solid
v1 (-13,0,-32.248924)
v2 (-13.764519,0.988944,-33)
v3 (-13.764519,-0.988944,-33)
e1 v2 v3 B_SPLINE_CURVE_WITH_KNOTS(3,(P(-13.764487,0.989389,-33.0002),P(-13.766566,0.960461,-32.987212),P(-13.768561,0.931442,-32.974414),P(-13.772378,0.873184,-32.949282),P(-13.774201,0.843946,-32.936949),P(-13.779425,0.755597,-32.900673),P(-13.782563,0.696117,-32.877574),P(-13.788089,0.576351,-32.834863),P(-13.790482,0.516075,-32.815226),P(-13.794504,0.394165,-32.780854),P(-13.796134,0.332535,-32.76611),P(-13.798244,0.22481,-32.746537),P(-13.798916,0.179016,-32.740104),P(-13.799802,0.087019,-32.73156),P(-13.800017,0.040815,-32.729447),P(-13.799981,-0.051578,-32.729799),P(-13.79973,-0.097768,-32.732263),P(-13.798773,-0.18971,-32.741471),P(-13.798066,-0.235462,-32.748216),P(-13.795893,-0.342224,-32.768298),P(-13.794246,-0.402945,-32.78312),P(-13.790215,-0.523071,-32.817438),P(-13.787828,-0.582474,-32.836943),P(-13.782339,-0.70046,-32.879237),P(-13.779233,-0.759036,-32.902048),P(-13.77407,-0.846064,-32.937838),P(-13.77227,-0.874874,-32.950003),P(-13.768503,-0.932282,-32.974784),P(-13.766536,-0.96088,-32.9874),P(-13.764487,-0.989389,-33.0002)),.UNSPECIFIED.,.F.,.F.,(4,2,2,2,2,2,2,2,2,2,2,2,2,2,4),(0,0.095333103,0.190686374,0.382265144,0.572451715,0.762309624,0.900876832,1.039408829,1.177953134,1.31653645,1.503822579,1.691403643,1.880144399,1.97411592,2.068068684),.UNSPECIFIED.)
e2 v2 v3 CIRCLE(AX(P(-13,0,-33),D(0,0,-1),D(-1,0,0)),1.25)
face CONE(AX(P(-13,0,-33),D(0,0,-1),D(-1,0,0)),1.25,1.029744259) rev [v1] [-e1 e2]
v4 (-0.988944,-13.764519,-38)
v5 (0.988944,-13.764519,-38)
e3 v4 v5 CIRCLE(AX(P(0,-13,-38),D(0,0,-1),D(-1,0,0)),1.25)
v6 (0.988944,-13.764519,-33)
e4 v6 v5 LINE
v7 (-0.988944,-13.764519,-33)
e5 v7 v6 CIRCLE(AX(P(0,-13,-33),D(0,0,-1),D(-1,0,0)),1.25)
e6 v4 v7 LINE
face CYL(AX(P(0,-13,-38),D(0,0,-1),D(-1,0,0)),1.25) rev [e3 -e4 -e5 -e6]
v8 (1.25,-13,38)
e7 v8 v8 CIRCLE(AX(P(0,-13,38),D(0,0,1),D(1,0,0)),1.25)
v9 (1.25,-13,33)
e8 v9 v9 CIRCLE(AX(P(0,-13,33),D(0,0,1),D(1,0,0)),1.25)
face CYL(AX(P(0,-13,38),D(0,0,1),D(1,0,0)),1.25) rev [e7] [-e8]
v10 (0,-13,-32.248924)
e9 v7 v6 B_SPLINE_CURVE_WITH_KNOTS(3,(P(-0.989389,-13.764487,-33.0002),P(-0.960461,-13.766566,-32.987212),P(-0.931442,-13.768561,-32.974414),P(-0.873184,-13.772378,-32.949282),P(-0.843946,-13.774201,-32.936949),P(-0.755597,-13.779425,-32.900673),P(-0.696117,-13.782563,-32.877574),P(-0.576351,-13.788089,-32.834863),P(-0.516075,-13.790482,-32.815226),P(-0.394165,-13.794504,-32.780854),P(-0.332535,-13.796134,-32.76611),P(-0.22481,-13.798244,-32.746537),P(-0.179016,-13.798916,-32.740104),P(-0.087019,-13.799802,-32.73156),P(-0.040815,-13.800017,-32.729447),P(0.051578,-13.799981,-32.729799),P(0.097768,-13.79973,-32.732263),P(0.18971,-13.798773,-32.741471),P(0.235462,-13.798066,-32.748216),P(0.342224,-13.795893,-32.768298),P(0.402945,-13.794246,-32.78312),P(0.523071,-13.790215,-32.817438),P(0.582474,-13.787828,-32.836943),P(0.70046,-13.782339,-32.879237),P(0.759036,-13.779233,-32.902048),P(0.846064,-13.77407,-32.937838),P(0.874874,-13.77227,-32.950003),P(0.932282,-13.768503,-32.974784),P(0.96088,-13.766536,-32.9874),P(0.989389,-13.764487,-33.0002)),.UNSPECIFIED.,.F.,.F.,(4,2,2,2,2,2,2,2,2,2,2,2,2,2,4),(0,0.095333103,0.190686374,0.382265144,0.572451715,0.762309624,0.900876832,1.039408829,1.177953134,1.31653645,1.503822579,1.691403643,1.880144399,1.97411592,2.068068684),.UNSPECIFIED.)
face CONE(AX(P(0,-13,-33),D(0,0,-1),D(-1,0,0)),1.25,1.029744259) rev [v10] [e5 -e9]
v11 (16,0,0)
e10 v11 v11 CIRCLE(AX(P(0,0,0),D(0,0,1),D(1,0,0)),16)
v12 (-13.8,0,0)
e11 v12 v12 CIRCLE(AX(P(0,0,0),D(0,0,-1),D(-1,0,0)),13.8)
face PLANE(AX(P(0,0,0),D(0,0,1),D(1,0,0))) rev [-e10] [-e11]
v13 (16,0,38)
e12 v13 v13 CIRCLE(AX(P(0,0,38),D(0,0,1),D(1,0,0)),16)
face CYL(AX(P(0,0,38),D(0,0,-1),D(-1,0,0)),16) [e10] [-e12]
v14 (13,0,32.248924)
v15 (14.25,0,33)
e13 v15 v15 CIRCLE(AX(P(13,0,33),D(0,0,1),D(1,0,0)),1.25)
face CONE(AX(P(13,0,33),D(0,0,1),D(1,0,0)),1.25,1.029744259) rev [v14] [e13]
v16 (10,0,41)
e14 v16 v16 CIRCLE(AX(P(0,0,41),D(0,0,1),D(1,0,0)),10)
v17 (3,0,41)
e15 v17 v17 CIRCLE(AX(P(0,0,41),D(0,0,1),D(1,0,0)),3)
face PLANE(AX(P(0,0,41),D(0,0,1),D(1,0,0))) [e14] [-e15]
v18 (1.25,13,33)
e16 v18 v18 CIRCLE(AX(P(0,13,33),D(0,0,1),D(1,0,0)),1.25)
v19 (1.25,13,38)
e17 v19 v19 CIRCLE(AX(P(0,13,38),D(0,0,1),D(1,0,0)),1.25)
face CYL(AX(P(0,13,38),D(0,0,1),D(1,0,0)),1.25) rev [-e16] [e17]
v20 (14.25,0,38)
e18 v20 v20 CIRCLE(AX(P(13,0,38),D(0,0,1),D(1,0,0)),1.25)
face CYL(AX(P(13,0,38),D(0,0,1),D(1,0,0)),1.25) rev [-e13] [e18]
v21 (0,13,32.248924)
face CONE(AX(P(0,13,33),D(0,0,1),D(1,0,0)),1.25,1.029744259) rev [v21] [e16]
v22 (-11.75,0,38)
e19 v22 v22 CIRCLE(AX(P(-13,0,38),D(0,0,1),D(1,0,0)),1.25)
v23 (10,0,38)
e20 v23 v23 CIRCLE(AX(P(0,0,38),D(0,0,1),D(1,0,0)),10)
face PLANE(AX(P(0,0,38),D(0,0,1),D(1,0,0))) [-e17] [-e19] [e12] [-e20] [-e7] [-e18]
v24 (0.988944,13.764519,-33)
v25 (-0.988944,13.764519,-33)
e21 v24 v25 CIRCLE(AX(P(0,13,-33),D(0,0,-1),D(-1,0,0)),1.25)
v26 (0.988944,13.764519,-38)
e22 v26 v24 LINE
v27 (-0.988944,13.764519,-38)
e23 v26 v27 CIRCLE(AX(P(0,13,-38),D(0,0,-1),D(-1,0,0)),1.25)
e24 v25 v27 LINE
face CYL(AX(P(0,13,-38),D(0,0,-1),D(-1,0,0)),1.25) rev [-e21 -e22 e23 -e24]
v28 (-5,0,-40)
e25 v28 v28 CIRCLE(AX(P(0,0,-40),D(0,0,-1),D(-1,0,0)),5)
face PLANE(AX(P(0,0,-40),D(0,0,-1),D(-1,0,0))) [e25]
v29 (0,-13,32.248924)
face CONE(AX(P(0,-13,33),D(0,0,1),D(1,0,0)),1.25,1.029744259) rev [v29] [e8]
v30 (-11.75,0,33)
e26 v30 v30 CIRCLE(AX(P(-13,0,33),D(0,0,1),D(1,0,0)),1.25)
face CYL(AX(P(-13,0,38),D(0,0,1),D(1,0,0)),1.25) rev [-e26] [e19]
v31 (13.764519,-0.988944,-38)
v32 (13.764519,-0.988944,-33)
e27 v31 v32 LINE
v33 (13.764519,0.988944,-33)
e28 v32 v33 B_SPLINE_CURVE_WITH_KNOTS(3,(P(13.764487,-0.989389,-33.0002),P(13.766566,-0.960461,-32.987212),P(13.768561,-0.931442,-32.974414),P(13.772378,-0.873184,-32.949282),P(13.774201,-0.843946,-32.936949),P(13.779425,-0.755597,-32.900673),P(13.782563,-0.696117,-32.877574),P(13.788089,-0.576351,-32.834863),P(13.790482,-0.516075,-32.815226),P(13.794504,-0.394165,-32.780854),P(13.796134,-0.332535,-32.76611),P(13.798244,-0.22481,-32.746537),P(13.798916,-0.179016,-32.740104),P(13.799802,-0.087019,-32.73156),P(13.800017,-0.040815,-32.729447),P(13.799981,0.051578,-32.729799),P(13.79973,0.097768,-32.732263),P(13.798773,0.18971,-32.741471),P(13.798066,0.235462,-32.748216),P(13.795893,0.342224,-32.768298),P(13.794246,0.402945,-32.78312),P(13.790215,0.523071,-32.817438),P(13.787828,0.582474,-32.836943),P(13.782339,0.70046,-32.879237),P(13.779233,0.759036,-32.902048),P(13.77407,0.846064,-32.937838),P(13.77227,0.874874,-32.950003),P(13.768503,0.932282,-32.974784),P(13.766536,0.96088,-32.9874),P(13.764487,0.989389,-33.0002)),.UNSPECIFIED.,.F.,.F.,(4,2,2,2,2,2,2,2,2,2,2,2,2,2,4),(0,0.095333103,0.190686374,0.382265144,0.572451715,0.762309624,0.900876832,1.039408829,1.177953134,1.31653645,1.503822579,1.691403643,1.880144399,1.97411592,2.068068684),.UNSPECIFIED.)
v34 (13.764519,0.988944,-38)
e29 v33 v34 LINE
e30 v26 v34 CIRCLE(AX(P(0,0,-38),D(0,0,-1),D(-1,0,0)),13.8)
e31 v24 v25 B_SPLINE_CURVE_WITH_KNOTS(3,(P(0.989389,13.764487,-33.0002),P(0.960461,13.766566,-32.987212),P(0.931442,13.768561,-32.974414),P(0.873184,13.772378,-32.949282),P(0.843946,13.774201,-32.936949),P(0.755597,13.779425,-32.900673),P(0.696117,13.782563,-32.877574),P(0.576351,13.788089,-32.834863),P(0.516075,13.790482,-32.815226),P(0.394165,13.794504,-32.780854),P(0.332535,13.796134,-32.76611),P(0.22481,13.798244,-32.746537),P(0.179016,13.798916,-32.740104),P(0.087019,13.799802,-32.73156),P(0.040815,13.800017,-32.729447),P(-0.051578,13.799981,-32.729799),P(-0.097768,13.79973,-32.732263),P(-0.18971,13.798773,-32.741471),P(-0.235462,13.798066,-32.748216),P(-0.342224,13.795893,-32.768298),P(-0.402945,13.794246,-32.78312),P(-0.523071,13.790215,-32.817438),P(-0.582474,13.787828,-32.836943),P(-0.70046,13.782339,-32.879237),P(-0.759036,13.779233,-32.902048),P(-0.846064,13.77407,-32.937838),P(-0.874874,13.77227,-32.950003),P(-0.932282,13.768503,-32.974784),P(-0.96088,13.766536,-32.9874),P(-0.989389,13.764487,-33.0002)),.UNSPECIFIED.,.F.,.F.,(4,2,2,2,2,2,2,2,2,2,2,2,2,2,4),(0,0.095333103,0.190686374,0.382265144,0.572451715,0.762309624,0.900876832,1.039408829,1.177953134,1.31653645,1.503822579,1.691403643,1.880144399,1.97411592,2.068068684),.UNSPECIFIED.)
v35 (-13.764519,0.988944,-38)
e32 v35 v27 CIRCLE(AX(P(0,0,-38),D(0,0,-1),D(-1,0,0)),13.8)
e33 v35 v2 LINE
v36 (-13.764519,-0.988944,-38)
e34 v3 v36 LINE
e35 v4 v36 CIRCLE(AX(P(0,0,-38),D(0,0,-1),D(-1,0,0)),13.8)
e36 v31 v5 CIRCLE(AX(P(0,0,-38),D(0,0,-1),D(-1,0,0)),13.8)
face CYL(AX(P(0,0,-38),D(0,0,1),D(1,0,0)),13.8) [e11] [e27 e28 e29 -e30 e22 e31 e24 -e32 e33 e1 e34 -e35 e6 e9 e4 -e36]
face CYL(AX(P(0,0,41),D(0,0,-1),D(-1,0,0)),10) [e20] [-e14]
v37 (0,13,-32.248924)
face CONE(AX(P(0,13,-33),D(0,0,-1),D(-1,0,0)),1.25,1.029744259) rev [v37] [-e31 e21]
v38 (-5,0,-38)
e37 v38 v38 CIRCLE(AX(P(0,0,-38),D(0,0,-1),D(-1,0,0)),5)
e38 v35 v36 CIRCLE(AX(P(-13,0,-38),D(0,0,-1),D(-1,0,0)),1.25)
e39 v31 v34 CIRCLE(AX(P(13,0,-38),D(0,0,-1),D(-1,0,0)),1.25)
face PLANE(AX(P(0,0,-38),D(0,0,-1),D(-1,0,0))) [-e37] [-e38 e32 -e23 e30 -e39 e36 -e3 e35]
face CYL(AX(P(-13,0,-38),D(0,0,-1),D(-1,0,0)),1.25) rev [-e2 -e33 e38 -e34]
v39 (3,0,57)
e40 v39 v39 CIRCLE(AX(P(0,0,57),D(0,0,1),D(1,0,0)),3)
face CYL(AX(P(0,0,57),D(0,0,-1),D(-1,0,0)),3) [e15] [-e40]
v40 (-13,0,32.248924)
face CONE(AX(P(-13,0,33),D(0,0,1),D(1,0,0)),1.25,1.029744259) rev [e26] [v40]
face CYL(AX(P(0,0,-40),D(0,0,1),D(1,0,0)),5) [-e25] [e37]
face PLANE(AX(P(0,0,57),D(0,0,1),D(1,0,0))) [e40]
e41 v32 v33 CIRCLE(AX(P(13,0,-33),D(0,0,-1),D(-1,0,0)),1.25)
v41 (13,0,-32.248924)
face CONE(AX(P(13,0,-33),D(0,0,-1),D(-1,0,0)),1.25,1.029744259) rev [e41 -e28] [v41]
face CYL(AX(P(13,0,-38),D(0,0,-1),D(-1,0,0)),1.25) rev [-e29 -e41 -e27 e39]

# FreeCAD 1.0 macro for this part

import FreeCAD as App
import Part
import Sketcher

V = App.Vector
Q = App.Units.Quantity

doc = App.newDocument("Part")
body = doc.addObject("PartDesign::Body", "Body")

# Sketch on XY plane
sketch1 = doc.addObject("Sketcher::SketchObject", "Sketch")
body.addObject(sketch1)
sketch1.AttachmentSupport = (doc.XY_Plane, [""])
sketch1.MapMode = "FlatFace"
sketch1.addGeometry(Part.Circle(V(0, 0, 0), V(0, 0, 1), 16), False)
sketch1.addConstraint([
    Sketcher.Constraint("Coincident", 0, 3, -1, 1),
    Sketcher.Constraint("Diameter", 0, Q("32 mm")),
])
pad1 = doc.addObject("PartDesign::Pad", "Pad")
body.addObject(pad1)
pad1.Profile = sketch1
pad1.Length = 38

# Sketch on XY plane
sketch2 = doc.addObject("Sketcher::SketchObject", "Sketch001")
body.addObject(sketch2)
sketch2.AttachmentSupport = (doc.XY_Plane, [""])
sketch2.MapMode = "FlatFace"
sketch2.addGeometry(Part.Circle(V(0, 0, 0), V(0, 0, 1), 13.8), False)
sketch2.addConstraint([
    Sketcher.Constraint("Coincident", 0, 3, -1, 1),
    Sketcher.Constraint("Diameter", 0, Q("27.6 mm")),
])
pad2 = doc.addObject("PartDesign::Pad", "Pad001")
body.addObject(pad2)
pad2.Profile = sketch2
pad2.Length = 38
pad2.Reversed = True

# Sketch on XY plane
sketch3 = doc.addObject("Sketcher::SketchObject", "Sketch002")
body.addObject(sketch3)
sketch3.AttachmentSupport = (doc.XY_Plane, [""])
sketch3.MapMode = "FlatFace"
sketch3.AttachmentOffset = App.Placement(V(0, 0, -38), App.Rotation())
sketch3.addGeometry(Part.Circle(V(0, 0, 0), V(0, 0, 1), 5), False)
sketch3.addConstraint([
    Sketcher.Constraint("Coincident", 0, 3, -1, 1),
    Sketcher.Constraint("Diameter", 0, Q("10 mm")),
])
pad3 = doc.addObject("PartDesign::Pad", "Pad002")
body.addObject(pad3)
pad3.Profile = sketch3
pad3.Length = 2
pad3.Reversed = True

# Sketch on XY plane
sketch4 = doc.addObject("Sketcher::SketchObject", "Sketch003")
body.addObject(sketch4)
sketch4.AttachmentSupport = (doc.XY_Plane, [""])
sketch4.MapMode = "FlatFace"
sketch4.AttachmentOffset = App.Placement(V(0, 0, 38), App.Rotation())
sketch4.addGeometry(Part.Circle(V(0, 0, 0), V(0, 0, 1), 10), False)
sketch4.addConstraint([
    Sketcher.Constraint("Coincident", 0, 3, -1, 1),
    Sketcher.Constraint("Diameter", 0, Q("20 mm")),
])
pad4 = doc.addObject("PartDesign::Pad", "Pad003")
body.addObject(pad4)
pad4.Profile = sketch4
pad4.Length = 3

# Sketch on XY plane
sketch5 = doc.addObject("Sketcher::SketchObject", "Sketch004")
body.addObject(sketch5)
sketch5.AttachmentSupport = (doc.XY_Plane, [""])
sketch5.MapMode = "FlatFace"
sketch5.AttachmentOffset = App.Placement(V(0, 0, 41), App.Rotation())
sketch5.addGeometry(Part.Circle(V(0, 0, 0), V(0, 0, 1), 3), False)
sketch5.addConstraint([
    Sketcher.Constraint("Coincident", 0, 3, -1, 1),
    Sketcher.Constraint("Diameter", 0, Q("6 mm")),
])
pad5 = doc.addObject("PartDesign::Pad", "Pad004")
body.addObject(pad5)
pad5.Profile = sketch5
pad5.Length = 16

# Sketch on XY plane
sketch6 = doc.addObject("Sketcher::SketchObject", "Sketch005")
body.addObject(sketch6)
sketch6.AttachmentSupport = (doc.XY_Plane, [""])
sketch6.MapMode = "FlatFace"
sketch6.AttachmentOffset = App.Placement(V(0, 0, -38), App.Rotation())
sketch6.addGeometry([
    Part.Circle(V(13, 0, 0), V(0, 0, 1), 1.25),
    Part.Circle(V(0, -13, 0), V(0, 0, 1), 1.25),
    Part.Circle(V(-13, 0, 0), V(0, 0, 1), 1.25),
    Part.Circle(V(0, 13, 0), V(0, 0, 1), 1.25),
], False)
sketch6.addConstraint([
    Sketcher.Constraint("Equal", 0, 1),
    Sketcher.Constraint("Equal", 1, 2),
    Sketcher.Constraint("Equal", 2, 3),
    Sketcher.Constraint("Symmetric", 0, 3, 2, 3, -1, 1),
    Sketcher.Constraint("Symmetric", 1, 3, 3, 3, -1, 1),
    Sketcher.Constraint("PointOnObject", 0, 3, -1),
    Sketcher.Constraint("PointOnObject", 1, 3, -2),
    Sketcher.Constraint("Diameter", 0, Q("2.5 mm")),
    Sketcher.Constraint("DistanceX", -1, 1, 0, 3, Q("13 mm")),
    Sketcher.Constraint("DistanceY", 1, 3, -1, 1, Q("13 mm")),
])
doc.recompute()
hole = doc.addObject("PartDesign::Hole", "Hole")
body.addObject(hole)
hole.Profile = sketch6
hole.ThreadType = "None"
hole.Diameter = 2.5
hole.DepthType = "Dimension"
hole.Depth = 5
hole.DrillPoint = "Angled"
hole.DrillPointAngle = 118
hole.Reversed = True

# Sketch on XY plane
sketch7 = doc.addObject("Sketcher::SketchObject", "Sketch006")
body.addObject(sketch7)
sketch7.AttachmentSupport = (doc.XY_Plane, [""])
sketch7.MapMode = "FlatFace"
sketch7.AttachmentOffset = App.Placement(V(0, 0, 38), App.Rotation())
sketch7.addGeometry([
    Part.Circle(V(0, 13, 0), V(0, 0, 1), 1.25),
    Part.Circle(V(-13, 0, 0), V(0, 0, 1), 1.25),
    Part.Circle(V(0, -13, 0), V(0, 0, 1), 1.25),
    Part.Circle(V(13, 0, 0), V(0, 0, 1), 1.25),
], False)
sketch7.addConstraint([
    Sketcher.Constraint("Equal", 0, 1),
    Sketcher.Constraint("Equal", 1, 2),
    Sketcher.Constraint("Equal", 2, 3),
    Sketcher.Constraint("Symmetric", 0, 3, 2, 3, -1, 1),
    Sketcher.Constraint("Symmetric", 1, 3, 3, 3, -1, 1),
    Sketcher.Constraint("PointOnObject", 0, 3, -2),
    Sketcher.Constraint("PointOnObject", 1, 3, -1),
    Sketcher.Constraint("Diameter", 0, Q("2.5 mm")),
    Sketcher.Constraint("DistanceY", -1, 1, 0, 3, Q("13 mm")),
    Sketcher.Constraint("DistanceX", 1, 3, -1, 1, Q("13 mm")),
])
doc.recompute()
hole2 = doc.addObject("PartDesign::Hole", "Hole001")
body.addObject(hole2)
hole2.Profile = sketch7
hole2.ThreadType = "None"
hole2.Diameter = 2.5
hole2.DepthType = "Dimension"
hole2.Depth = 5
hole2.DrillPoint = "Angled"
hole2.DrillPointAngle = 118

doc.recompute()
